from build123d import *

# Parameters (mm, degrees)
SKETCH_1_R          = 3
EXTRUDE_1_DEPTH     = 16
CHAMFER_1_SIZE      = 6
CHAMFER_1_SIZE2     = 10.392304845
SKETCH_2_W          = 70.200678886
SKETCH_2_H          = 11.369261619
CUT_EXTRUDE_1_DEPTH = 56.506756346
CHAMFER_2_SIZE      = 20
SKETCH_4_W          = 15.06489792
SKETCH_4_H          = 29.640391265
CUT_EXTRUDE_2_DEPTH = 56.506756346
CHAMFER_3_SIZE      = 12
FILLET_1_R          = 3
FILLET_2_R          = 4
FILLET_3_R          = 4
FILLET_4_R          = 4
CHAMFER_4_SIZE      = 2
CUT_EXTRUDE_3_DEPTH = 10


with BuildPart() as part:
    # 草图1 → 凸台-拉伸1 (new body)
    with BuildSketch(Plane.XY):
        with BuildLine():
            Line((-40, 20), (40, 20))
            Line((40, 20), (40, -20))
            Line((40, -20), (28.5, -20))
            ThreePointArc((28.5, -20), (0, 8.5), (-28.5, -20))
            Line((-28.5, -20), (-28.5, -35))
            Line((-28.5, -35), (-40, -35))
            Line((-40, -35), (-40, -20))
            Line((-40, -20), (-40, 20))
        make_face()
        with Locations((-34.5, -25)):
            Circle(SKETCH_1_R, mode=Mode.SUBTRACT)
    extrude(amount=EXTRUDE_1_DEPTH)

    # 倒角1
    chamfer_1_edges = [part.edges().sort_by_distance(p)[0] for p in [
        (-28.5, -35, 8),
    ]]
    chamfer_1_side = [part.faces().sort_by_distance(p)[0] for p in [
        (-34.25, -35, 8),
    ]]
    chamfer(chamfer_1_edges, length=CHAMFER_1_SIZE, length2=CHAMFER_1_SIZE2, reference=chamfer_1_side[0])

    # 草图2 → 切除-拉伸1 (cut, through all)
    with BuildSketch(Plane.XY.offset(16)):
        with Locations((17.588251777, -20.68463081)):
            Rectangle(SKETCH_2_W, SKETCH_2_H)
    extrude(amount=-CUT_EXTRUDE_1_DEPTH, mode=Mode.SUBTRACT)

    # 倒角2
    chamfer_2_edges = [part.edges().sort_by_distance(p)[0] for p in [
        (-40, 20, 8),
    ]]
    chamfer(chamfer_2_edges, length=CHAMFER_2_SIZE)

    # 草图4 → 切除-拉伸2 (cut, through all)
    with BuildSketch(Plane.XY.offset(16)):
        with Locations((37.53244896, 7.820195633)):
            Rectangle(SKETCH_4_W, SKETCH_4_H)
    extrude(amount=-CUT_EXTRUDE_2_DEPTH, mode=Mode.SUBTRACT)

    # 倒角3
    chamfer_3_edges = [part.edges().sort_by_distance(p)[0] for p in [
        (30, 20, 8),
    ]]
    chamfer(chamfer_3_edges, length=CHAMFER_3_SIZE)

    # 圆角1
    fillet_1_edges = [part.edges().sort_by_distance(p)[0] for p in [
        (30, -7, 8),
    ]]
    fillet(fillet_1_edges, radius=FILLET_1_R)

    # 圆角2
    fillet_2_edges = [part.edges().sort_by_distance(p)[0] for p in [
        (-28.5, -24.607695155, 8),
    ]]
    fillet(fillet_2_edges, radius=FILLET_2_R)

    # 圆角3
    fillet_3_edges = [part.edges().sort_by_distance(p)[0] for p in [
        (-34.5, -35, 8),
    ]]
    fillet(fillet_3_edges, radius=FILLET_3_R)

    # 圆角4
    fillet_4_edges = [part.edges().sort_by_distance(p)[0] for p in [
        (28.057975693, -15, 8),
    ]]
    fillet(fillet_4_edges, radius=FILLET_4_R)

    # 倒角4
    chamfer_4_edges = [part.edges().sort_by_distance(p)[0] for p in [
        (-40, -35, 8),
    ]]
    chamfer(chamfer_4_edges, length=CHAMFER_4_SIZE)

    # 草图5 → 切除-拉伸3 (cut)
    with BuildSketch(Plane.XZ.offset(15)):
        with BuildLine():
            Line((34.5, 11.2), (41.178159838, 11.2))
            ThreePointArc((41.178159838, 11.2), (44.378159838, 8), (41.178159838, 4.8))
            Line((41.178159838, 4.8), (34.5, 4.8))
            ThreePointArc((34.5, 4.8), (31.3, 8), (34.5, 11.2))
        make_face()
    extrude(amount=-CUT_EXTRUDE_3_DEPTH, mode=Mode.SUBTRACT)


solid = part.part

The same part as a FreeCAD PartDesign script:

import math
import FreeCAD as App
import Part
import Sketcher
Q = App.Units.Quantity


def edges_at(feature, points):
    """Names of the edges that pass closest to the given points."""
    edges = feature.Shape.Edges
    near = lambda p: min(range(len(edges)), key=lambda i: edges[i].distToShape(Part.Vertex(*p))[0])
    return sorted({f"Edge{near(p) + 1}" for p in points})


def add_polygon(sketch, points):
    """Adds a closed chain of lines whose ends are joined by coincident constraints."""
    first, n = sketch.GeometryCount, len(points)
    for a, b in zip(points, points[1:] + points[:1]):
        sketch.addGeometry(Part.LineSegment(App.Vector(*a, 0), App.Vector(*b, 0)), False)
    for i in range(n):
        sketch.addConstraint(Sketcher.Constraint("Coincident", first + i, 2, first + (i + 1) % n, 1))

doc = App.newDocument("Part")
body = doc.addObject("PartDesign::Body", "Body")

# Sketch on XY plane
sketch1 = doc.addObject("Sketcher::SketchObject", "Sketch")
body.addObject(sketch1)
sketch1.AttachmentSupport = (doc.XY_Plane, [""])
sketch1.MapMode = "FlatFace"
sketch1.addGeometry([
    Part.LineSegment(App.Vector(40, 20, 0), App.Vector(-40, 20, 0)),  # 0
    Part.LineSegment(App.Vector(-40, 20, 0), App.Vector(-40, -35, 0)),  # 1
    Part.LineSegment(App.Vector(-40, -35, 0), App.Vector(-28.5, -35, 0)),  # 2
    Part.LineSegment(App.Vector(-28.5, -35, 0), App.Vector(-28.5, -20, 0)),  # 3
    Part.ArcOfCircle(Part.Circle(App.Vector(0, -20, 0), App.Vector(0, 0, 1), 28.5), math.radians(0), math.radians(180)),  # 4
    Part.LineSegment(App.Vector(28.5, -20, 0), App.Vector(40, -20, 0)),  # 5
    Part.LineSegment(App.Vector(40, -20, 0), App.Vector(40, 20, 0)),  # 6
    Part.Circle(App.Vector(-34.5, -25, 0), App.Vector(0, 0, 1), 3),  # 7
], False)
sketch1.addConstraint([
    Sketcher.Constraint("Coincident", 0, 2, 1, 1),
    Sketcher.Constraint("Coincident", 1, 2, 2, 1),
    Sketcher.Constraint("Coincident", 2, 2, 3, 1),
    Sketcher.Constraint("Tangent", 3, 2, 4, 2),
    Sketcher.Constraint("Coincident", 4, 1, 5, 1),
    Sketcher.Constraint("Coincident", 5, 2, 6, 1),
    Sketcher.Constraint("Coincident", 6, 2, 0, 1),
    Sketcher.Constraint("Horizontal", 0),
    Sketcher.Constraint("Vertical", 1),
    Sketcher.Constraint("Horizontal", 2),
    Sketcher.Constraint("Vertical", 3),
    Sketcher.Constraint("Horizontal", 5),
    Sketcher.Constraint("Vertical", 6),
    Sketcher.Constraint("Symmetric", 0, 2, 5, 2, -1, 1),
    Sketcher.Constraint("Symmetric", 3, 2, 4, 1, -2),
    Sketcher.Constraint("Diameter", 7, Q("6 mm")),
    Sketcher.Constraint("Radius", 4, Q("28.5 mm")),
    Sketcher.Constraint("DistanceX", 0, 2, 0, 1, Q("80 mm")),
    Sketcher.Constraint("DistanceY", 1, 2, 1, 1, Q("55 mm")),
    Sketcher.Constraint("DistanceY", 3, 1, 3, 2, Q("15 mm")),
    Sketcher.Constraint("DistanceY", 7, 3, -1, 1, Q("25 mm")),
    Sketcher.Constraint("DistanceX", 7, 3, 2, 2, Q("6 mm")),
])
pad1 = doc.addObject("PartDesign::Pad", "Pad")
body.addObject(pad1)
pad1.Profile = sketch1
pad1.Length = 16
doc.recompute()

chamfer = doc.addObject("PartDesign::Chamfer", "Chamfer")
body.addObject(chamfer)
chamfer.Base = (pad1, edges_at(pad1, [(-28.5, -35, 8)]))
chamfer.ChamferType = "Two distances"
chamfer.Size = 6
chamfer.Size2 = 10.392305

# Sketch on XY plane
sketch2 = doc.addObject("Sketcher::SketchObject", "Sketch001")
body.addObject(sketch2)
sketch2.AttachmentSupport = (doc.XY_Plane, [""])
sketch2.MapMode = "FlatFace"
sketch2.AttachmentOffset = App.Placement(App.Vector(0, 0, 16), App.Rotation())
add_polygon(sketch2, [(-18, -15), (-18, -26), (53, -26), (53, -15)])  # lines 0-3
sketch2.addConstraint([
    Sketcher.Constraint("Vertical", 0),
    Sketcher.Constraint("Horizontal", 1),
    Sketcher.Constraint("Vertical", 2),
    Sketcher.Constraint("Horizontal", 3),
    Sketcher.Constraint("DistanceY", 2, 2, -1, 1, Q("15 mm")),
    Sketcher.Constraint("DistanceX", 1, 1, 1, 2, Q("70.200679 mm")),
    Sketcher.Constraint("DistanceY", 0, 2, 0, 1, Q("11.369262 mm")),
    Sketcher.Constraint("DistanceX", -1, 1, 1, 2, Q("52.688591 mm")),
])
pocket1 = doc.addObject("PartDesign::Pocket", "Pocket")
body.addObject(pocket1)
pocket1.Profile = sketch2
pocket1.Type = "ThroughAll"
doc.recompute()

chamfer2 = doc.addObject("PartDesign::Chamfer", "Chamfer001")
body.addObject(chamfer2)
chamfer2.Base = (pocket1, edges_at(pocket1, [(-40, 20, 8)]))
chamfer2.Size = 20

# Sketch on XY plane
sketch3 = doc.addObject("Sketcher::SketchObject", "Sketch002")
body.addObject(sketch3)
sketch3.AttachmentSupport = (doc.XY_Plane, [""])
sketch3.MapMode = "FlatFace"
sketch3.AttachmentOffset = App.Placement(App.Vector(0, 0, 16), App.Rotation())
add_polygon(sketch3, [(30, 23), (30, -7), (45, -7), (45, 23)])  # lines 0-3
sketch3.addConstraint([
    Sketcher.Constraint("Vertical", 0),
    Sketcher.Constraint("Horizontal", 1),
    Sketcher.Constraint("Vertical", 2),
    Sketcher.Constraint("Horizontal", 3),
    Sketcher.Constraint("DistanceX", -1, 1, 0, 2, Q("30 mm")),
    Sketcher.Constraint("DistanceY", 0, 2, -1, 1, Q("7 mm")),
    Sketcher.Constraint("DistanceY", 0, 2, 0, 1, Q("29.640391 mm")),
    Sketcher.Constraint("DistanceX", 1, 1, 1, 2, Q("15.064898 mm")),
])
pocket2 = doc.addObject("PartDesign::Pocket", "Pocket001")
body.addObject(pocket2)
pocket2.Profile = sketch3
pocket2.Type = "ThroughAll"
doc.recompute()

chamfer3 = doc.addObject("PartDesign::Chamfer", "Chamfer002")
body.addObject(chamfer3)
chamfer3.Base = (pocket2, edges_at(pocket2, [(30, 20, 8)]))
chamfer3.Size = 12
doc.recompute()

fillet = doc.addObject("PartDesign::Fillet", "Fillet")
body.addObject(fillet)
fillet.Base = (chamfer3, edges_at(chamfer3, [(30, -7, 8)]))
fillet.Radius = 3
doc.recompute()

fillet2 = doc.addObject("PartDesign::Fillet", "Fillet001")
body.addObject(fillet2)
fillet2.Base = (fillet, edges_at(fillet, [(-28.5, -24.608, 8)]))
fillet2.Radius = 4
doc.recompute()

fillet3 = doc.addObject("PartDesign::Fillet", "Fillet002")
body.addObject(fillet3)
fillet3.Base = (fillet2, edges_at(fillet2, [(-34.5, -35, 8)]))
fillet3.Radius = 4
doc.recompute()

fillet4 = doc.addObject("PartDesign::Fillet", "Fillet003")
body.addObject(fillet4)
fillet4.Base = (fillet3, edges_at(fillet3, [(28.058, -15, 8)]))
fillet4.Radius = 4
doc.recompute()

chamfer4 = doc.addObject("PartDesign::Chamfer", "Chamfer003")
body.addObject(chamfer4)
chamfer4.Base = (fillet4, edges_at(fillet4, [(-40, -35, 8)]))
chamfer4.Size = 2

# Sketch on XZ plane
sketch4 = doc.addObject("Sketcher::SketchObject", "Sketch003")
body.addObject(sketch4)
sketch4.AttachmentSupport = (doc.XZ_Plane, [""])
sketch4.MapMode = "FlatFace"
sketch4.AttachmentOffset = App.Placement(App.Vector(0, 0, 15), App.Rotation())
sketch4.addGeometry([
    Part.LineSegment(App.Vector(41.2, 11.2, 0), App.Vector(34.5, 11.2, 0)),
    Part.ArcOfCircle(Part.Circle(App.Vector(34.5, 8, 0), App.Vector(0, 0, 1), 3.2), math.radians(90), math.radians(270)),
    Part.LineSegment(App.Vector(34.5, 4.8, 0), App.Vector(41.2, 4.8, 0)),
    Part.ArcOfCircle(Part.Circle(App.Vector(41.2, 8, 0), App.Vector(0, 0, 1), 3.2), math.radians(-90), math.radians(90)),
], False)
sketch4.addConstraint([
    Sketcher.Constraint("Tangent", 0, 2, 1, 1),
    Sketcher.Constraint("Tangent", 1, 2, 2, 1),
    Sketcher.Constraint("Tangent", 2, 2, 3, 1),
    Sketcher.Constraint("Tangent", 3, 2, 0, 1),
    Sketcher.Constraint("Horizontal", 0),
    Sketcher.Constraint("Horizontal", 2),
    Sketcher.Constraint("Radius", 1, Q("3.2 mm")),
    Sketcher.Constraint("DistanceY", -1, 1, 1, 3, Q("8 mm")),
    Sketcher.Constraint("DistanceX", -1, 1, 1, 3, Q("34.5 mm")),
    Sketcher.Constraint("DistanceX", 0, 2, 0, 1, Q("6.67816 mm")),
])
pocket3 = doc.addObject("PartDesign::Pocket", "Pocket002")
body.addObject(pocket3)
pocket3.Profile = sketch4
pocket3.Length = 10

doc.recompute()
